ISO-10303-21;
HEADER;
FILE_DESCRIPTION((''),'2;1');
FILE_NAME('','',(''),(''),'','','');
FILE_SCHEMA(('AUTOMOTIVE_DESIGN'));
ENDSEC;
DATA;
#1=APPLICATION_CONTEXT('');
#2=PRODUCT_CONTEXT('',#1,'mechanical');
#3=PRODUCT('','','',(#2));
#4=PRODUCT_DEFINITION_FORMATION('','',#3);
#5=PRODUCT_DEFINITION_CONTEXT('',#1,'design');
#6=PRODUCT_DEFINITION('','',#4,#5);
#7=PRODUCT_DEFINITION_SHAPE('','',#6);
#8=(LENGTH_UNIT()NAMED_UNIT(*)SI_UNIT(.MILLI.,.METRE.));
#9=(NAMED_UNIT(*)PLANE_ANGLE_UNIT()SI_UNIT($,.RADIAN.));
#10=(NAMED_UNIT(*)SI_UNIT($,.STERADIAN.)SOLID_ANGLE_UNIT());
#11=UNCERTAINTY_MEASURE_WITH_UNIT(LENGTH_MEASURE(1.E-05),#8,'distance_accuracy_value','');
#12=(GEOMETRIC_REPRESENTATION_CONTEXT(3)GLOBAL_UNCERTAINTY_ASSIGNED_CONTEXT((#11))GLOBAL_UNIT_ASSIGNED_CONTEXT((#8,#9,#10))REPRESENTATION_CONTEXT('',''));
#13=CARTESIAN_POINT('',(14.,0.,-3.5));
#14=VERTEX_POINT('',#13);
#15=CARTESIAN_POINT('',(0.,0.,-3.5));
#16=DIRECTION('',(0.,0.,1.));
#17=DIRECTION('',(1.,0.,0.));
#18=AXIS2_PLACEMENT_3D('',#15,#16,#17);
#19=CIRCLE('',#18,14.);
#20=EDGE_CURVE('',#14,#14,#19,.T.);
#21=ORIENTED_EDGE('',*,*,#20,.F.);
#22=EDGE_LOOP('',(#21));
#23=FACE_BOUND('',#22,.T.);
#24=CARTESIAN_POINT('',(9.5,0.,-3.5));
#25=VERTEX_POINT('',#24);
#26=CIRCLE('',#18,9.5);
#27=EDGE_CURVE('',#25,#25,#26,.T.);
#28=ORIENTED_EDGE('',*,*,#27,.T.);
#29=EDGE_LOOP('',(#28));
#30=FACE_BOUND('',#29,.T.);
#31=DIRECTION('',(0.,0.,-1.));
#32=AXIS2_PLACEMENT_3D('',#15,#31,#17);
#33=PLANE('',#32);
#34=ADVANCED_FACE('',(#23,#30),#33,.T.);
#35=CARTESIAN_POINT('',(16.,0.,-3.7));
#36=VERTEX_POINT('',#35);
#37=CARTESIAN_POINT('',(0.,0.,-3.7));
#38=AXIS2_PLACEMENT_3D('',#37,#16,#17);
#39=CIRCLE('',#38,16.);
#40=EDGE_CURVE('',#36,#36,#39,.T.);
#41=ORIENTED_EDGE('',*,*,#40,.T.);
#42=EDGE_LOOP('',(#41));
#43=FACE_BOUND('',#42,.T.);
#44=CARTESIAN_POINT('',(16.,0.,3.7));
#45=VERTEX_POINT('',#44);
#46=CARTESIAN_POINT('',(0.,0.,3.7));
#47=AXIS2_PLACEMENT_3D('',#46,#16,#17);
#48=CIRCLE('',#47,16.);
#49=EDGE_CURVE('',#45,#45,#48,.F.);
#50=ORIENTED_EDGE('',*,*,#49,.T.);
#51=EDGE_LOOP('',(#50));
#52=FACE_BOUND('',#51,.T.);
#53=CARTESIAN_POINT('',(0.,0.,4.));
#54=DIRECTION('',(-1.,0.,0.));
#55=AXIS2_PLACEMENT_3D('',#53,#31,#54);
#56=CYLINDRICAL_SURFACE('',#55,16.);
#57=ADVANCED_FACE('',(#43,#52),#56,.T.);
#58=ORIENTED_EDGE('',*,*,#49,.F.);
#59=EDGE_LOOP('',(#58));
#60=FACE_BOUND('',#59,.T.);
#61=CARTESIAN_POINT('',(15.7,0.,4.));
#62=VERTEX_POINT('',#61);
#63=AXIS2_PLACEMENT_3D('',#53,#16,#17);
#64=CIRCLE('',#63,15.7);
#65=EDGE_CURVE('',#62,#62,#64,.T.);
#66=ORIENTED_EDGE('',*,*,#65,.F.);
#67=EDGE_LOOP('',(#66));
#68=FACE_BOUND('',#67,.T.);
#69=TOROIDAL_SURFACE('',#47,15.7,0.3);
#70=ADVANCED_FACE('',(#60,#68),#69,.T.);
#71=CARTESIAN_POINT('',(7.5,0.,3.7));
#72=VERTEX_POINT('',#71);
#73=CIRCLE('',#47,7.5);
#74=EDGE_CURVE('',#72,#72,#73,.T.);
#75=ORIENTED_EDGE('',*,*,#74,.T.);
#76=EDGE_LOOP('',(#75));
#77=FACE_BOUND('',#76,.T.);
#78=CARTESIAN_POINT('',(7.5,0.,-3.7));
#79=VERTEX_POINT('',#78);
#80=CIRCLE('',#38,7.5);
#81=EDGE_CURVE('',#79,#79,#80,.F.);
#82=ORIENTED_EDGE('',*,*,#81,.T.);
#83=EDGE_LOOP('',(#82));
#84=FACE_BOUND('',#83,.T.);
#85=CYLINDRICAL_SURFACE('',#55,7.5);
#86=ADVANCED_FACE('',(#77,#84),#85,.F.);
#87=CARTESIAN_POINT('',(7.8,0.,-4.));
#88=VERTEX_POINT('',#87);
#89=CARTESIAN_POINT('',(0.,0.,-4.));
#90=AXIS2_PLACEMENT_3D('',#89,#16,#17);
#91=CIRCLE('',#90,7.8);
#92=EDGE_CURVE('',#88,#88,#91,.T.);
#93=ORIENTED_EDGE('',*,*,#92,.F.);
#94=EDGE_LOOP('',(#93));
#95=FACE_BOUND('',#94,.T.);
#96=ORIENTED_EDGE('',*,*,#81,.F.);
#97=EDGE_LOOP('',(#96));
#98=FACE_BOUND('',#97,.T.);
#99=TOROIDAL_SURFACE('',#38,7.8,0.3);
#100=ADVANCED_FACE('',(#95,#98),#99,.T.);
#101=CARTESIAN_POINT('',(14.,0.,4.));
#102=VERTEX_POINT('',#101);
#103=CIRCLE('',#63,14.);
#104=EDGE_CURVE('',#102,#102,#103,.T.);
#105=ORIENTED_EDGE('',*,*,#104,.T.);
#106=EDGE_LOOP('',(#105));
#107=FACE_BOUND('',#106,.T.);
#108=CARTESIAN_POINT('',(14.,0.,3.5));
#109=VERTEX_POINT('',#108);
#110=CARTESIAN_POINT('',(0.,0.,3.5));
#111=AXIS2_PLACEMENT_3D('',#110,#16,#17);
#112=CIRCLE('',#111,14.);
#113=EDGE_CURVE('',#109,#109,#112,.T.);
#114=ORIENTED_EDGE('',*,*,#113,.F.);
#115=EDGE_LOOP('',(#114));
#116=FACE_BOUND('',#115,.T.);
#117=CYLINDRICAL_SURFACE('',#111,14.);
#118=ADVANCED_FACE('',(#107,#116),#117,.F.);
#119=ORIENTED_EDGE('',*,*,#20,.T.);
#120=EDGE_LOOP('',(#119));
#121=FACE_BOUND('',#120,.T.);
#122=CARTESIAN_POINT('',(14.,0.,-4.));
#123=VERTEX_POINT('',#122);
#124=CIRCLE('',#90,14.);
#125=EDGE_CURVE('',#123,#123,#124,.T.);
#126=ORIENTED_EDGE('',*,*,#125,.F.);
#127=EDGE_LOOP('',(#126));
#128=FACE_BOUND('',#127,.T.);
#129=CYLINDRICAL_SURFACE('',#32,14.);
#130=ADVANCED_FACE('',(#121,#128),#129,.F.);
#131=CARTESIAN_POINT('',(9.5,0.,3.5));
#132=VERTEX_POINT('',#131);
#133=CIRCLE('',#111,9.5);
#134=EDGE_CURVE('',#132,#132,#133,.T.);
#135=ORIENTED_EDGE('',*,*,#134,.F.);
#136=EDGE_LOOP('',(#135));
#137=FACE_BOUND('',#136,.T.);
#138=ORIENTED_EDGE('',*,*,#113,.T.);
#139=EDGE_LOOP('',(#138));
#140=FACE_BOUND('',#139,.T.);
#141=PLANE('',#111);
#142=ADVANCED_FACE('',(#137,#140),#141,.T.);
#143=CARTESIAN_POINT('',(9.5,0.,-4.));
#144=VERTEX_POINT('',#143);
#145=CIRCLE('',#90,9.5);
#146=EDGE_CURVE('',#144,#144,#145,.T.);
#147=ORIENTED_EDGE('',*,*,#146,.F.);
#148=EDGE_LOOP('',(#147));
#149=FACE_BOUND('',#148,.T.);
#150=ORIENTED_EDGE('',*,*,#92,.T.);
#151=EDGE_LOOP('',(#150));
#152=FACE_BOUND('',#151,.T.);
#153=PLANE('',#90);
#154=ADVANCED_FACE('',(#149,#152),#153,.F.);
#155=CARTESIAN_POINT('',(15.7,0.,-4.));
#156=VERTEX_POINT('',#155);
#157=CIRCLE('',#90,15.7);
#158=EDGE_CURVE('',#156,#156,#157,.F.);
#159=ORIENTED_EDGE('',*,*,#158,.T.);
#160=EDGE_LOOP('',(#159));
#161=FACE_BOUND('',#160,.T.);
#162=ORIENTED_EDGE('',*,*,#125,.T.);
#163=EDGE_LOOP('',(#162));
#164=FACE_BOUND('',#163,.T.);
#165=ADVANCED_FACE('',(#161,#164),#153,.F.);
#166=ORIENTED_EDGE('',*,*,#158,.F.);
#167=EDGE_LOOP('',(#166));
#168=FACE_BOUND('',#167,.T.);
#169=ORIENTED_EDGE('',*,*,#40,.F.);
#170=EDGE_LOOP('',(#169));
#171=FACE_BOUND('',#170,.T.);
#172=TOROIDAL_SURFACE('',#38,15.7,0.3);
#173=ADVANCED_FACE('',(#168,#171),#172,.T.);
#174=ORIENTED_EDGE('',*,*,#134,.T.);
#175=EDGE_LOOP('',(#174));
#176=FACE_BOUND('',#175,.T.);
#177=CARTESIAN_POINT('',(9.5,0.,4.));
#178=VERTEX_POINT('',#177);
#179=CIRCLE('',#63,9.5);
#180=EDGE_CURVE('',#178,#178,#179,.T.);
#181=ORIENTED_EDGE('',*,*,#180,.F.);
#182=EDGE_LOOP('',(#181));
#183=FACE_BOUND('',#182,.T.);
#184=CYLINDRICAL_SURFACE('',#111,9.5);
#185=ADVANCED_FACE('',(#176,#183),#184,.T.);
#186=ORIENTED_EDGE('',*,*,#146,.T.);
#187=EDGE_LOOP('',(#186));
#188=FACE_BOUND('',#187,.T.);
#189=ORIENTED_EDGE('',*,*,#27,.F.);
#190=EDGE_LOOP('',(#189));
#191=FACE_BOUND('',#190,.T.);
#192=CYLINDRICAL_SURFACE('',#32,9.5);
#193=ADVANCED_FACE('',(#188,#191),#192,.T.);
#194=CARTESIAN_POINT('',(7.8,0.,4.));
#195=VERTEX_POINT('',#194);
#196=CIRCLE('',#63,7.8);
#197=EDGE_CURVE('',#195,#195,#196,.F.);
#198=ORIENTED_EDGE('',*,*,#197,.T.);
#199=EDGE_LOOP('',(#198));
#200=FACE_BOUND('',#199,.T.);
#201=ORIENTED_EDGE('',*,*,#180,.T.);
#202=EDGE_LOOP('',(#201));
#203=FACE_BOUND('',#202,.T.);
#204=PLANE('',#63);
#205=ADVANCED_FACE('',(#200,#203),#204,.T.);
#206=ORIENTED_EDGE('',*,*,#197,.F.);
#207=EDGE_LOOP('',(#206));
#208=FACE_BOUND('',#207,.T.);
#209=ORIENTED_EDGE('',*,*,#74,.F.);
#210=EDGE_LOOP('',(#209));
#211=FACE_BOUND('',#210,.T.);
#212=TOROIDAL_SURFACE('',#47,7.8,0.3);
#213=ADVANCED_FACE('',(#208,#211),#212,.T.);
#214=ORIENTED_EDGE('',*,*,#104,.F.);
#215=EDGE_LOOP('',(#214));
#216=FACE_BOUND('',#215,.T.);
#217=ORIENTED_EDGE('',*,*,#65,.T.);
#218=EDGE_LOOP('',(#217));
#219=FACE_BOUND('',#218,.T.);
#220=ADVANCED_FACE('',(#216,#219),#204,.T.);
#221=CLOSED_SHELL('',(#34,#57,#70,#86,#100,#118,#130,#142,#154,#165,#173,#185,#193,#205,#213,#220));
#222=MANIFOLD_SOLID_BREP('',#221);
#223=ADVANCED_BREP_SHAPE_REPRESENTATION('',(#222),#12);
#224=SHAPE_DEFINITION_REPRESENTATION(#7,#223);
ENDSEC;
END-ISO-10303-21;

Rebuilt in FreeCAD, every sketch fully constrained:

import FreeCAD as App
import Part
import Sketcher

V = App.Vector
Q = App.Units.Quantity


def edges_at(feature, points):
    """Names of the edges that pass closest to the given points."""
    edges = feature.Shape.Edges
    near = lambda p: min(range(len(edges)), key=lambda i: edges[i].distToShape(Part.Vertex(*p))[0])
    return sorted({f"Edge{near(p) + 1}" for p in points})

doc = App.newDocument("Part")
params = doc.addObject("Spreadsheet::Sheet", "Params")
for row, (alias, value) in enumerate([
    ("sketch1_diameter", "32 mm"),
    ("sketch1_diameter2", "15 mm"),
    ("pad1_length", "8 mm"),
    ("sketch2_diameter", "28 mm"),
    ("sketch2_diameter2", "19 mm"),
    ("pocket1_length", "0.5 mm"),
    ("fillet_radius", "0.3 mm"),
], start=1):
    params.set(f"A{row}", alias)
    params.set(f"B{row}", "=" + value)
    params.setAlias(f"B{row}", alias)

body = doc.addObject("PartDesign::Body", "Body")

sketch1 = body.newObject("Sketcher::SketchObject", "Sketch")
sketch1.AttachmentSupport = (doc.getObject("XY_Plane"), [""])
sketch1.MapMode = "FlatFace"
sketch1.addGeometry([
    Part.Circle(V(0, 0, 0), V(0, 0, 1), 16),
    Part.Circle(V(0, 0, 0), V(0, 0, 1), 8),
], False)
sketch1.addConstraint([
    Sketcher.Constraint("Coincident", 0, 3, -1, 1),
    Sketcher.Constraint("Coincident", 1, 3, -1, 1),
    Sketcher.Constraint("Diameter", 0, Q("32 mm")),
    Sketcher.Constraint("Diameter", 1, Q("15 mm")),
])
sketch1.setExpression("Constraints[2]", "Params.sketch1_diameter")
sketch1.setExpression("Constraints[3]", "Params.sketch1_diameter2")
pad1 = body.newObject("PartDesign::Pad", "Pad")
pad1.Profile = sketch1
pad1.setExpression("Length", "Params.pad1_length")
pad1.Midplane = True

sketch2 = body.newObject("Sketcher::SketchObject", "Sketch001")
sketch2.AttachmentSupport = (doc.getObject("XY_Plane"), [""])
sketch2.MapMode = "FlatFace"
sketch2.AttachmentOffset = App.Placement(V(0, 0, 4), App.Rotation())
sketch2.addGeometry([
    Part.Circle(V(0, 0, 0), V(0, 0, 1), 14),
    Part.Circle(V(0, 0, 0), V(0, 0, 1), 10),
], False)
sketch2.addConstraint([
    Sketcher.Constraint("Coincident", 0, 3, -1, 1),
    Sketcher.Constraint("Coincident", 1, 3, -1, 1),
    Sketcher.Constraint("Diameter", 0, Q("28 mm")),
    Sketcher.Constraint("Diameter", 1, Q("19 mm")),
])
sketch2.setExpression("Constraints[2]", "Params.sketch2_diameter")
sketch2.setExpression("Constraints[3]", "Params.sketch2_diameter2")
pocket1 = body.newObject("PartDesign::Pocket", "Pocket")
pocket1.Profile = sketch2
pocket1.setExpression("Length", "Params.pocket1_length")
doc.recompute()

fillet = body.newObject("PartDesign::Fillet", "Fillet")
fillet.Base = (pocket1, edges_at(pocket1, [
    (-16, 0, -4),
    (-16, 0, 4),
    (-7.5, 0, -4),
    (-7.5, 0, 4),
]))
fillet.setExpression("Radius", "Params.fillet_radius")
doc.recompute()

mirrored = body.newObject("PartDesign::Mirrored", "Mirrored")
mirrored.Originals = [pocket1]
mirrored.MirrorPlane = (doc.getObject("XY_Plane"), [""])
body.Tip = mirrored

doc.recompute()
